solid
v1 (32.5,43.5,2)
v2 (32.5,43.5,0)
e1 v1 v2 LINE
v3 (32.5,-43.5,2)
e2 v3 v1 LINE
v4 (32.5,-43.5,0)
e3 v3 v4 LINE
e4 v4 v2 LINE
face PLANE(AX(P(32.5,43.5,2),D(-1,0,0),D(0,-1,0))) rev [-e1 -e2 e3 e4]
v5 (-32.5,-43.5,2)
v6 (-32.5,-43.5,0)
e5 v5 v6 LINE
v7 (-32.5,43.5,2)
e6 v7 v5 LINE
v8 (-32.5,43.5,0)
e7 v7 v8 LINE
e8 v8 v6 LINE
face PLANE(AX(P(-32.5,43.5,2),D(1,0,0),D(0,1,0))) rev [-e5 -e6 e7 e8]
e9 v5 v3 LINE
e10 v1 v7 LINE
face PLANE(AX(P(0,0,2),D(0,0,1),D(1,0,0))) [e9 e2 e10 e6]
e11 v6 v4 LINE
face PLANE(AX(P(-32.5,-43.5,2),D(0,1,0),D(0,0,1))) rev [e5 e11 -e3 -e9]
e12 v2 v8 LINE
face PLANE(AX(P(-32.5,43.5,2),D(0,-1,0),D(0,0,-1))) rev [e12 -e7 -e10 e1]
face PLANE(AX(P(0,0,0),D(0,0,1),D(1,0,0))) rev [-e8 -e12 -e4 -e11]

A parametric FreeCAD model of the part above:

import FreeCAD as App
import Part
import Sketcher
Q = App.Units.Quantity


def add_polygon(sketch, points):
    """Adds a closed chain of lines whose ends are joined by coincident constraints."""
    first, n = sketch.GeometryCount, len(points)
    for a, b in zip(points, points[1:] + points[:1]):
        sketch.addGeometry(Part.LineSegment(App.Vector(*a, 0), App.Vector(*b, 0)), False)
    for i in range(n):
        sketch.addConstraint(Sketcher.Constraint("Coincident", first + i, 2, first + (i + 1) % n, 1))

doc = App.newDocument("Part")
body = doc.addObject("PartDesign::Body", "Body")

# Sketch on XY plane
sketch1 = doc.addObject("Sketcher::SketchObject", "Sketch")
body.addObject(sketch1)
sketch1.AttachmentSupport = (doc.XY_Plane, [""])
sketch1.MapMode = "FlatFace"
add_polygon(sketch1, [(-32.5, 43.5), (-32.5, -43.5), (32.5, -43.5), (32.5, 43.5)])  # lines 0-3
sketch1.addConstraint([
    Sketcher.Constraint("Vertical", 0),
    Sketcher.Constraint("Horizontal", 1),
    Sketcher.Constraint("Vertical", 2),
    Sketcher.Constraint("Horizontal", 3),
    Sketcher.Constraint("Symmetric", 0, 2, 2, 2, -1, 1),
    Sketcher.Constraint("DistanceX", 1, 1, 1, 2, Q("65 mm")),
    Sketcher.Constraint("DistanceY", 0, 2, 0, 1, Q("87 mm")),
])
pad1 = doc.addObject("PartDesign::Pad", "Pad")
body.addObject(pad1)
pad1.Profile = sketch1
pad1.Length = 2

doc.recompute()
